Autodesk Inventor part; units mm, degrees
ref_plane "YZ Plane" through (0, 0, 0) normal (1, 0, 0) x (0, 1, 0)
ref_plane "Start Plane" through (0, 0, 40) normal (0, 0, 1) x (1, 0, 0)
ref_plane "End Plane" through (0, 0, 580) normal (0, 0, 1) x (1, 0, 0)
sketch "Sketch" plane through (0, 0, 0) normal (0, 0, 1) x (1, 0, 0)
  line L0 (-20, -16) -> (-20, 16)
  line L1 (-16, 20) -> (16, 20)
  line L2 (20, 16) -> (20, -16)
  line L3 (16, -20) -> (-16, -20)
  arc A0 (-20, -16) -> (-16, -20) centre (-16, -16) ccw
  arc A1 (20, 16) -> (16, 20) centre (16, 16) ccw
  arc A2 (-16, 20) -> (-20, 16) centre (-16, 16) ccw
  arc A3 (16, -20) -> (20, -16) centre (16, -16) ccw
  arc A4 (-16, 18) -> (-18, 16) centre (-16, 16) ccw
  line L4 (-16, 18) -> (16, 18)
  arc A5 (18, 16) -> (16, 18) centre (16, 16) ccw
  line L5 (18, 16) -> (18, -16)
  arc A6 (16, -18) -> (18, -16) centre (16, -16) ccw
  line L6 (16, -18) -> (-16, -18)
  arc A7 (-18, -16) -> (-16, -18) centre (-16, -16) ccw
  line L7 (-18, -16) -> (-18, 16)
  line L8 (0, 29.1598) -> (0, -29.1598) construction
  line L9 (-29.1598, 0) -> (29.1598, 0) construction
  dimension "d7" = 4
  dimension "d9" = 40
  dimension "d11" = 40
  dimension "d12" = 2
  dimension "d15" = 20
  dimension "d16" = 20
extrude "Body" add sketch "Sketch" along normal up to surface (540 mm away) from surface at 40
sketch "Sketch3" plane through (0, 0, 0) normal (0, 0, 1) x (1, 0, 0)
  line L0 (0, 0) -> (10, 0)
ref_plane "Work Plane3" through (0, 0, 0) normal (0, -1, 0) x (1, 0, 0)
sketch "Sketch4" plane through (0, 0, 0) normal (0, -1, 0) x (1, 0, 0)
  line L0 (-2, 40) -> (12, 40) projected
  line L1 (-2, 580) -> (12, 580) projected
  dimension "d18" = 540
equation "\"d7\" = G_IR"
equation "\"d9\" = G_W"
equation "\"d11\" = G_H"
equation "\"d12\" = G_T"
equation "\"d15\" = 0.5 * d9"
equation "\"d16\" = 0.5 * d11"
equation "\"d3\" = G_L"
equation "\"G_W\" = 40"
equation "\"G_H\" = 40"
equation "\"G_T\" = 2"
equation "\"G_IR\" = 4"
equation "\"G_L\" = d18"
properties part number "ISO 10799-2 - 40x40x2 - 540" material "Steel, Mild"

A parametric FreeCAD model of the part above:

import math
import FreeCAD as App
import Part
import Sketcher
from FreeCAD import Vector

doc = App.newDocument("Part")
body = doc.addObject("PartDesign::Body", "Body")

# Sketch on XY plane
sketch1 = body.newObject("Sketcher::SketchObject", "Sketch")
sketch1.AttachmentSupport = (doc.getObject("XY_Plane"), [""])
sketch1.MapMode = "FlatFace"
sketch1.AttachmentOffset = App.Placement(Vector(0, 0, 40), App.Rotation())
sketch1.addGeometry([
    Part.LineSegment(Vector(-20, 16, 0), Vector(-20, -16, 0)),  # 0
    Part.ArcOfCircle(Part.Circle(Vector(-16, -16, 0), Vector(0, 0, 1), 4), math.radians(180), math.radians(270)),  # 1
    Part.LineSegment(Vector(-16, -20, 0), Vector(16, -20, 0)),  # 2
    Part.ArcOfCircle(Part.Circle(Vector(16, -16, 0), Vector(0, 0, 1), 4), math.radians(-90), math.radians(0)),  # 3
    Part.LineSegment(Vector(20, -16, 0), Vector(20, 16, 0)),  # 4
    Part.ArcOfCircle(Part.Circle(Vector(16, 16, 0), Vector(0, 0, 1), 4), math.radians(0), math.radians(90)),  # 5
    Part.LineSegment(Vector(16, 20, 0), Vector(-16, 20, 0)),  # 6
    Part.ArcOfCircle(Part.Circle(Vector(-16, 16, 0), Vector(0, 0, 1), 4), math.radians(90), math.radians(180)),  # 7
    Part.ArcOfCircle(Part.Circle(Vector(-16, 16, 0), Vector(0, 0, 1), 2), math.radians(90), math.radians(180)),  # 8
    Part.LineSegment(Vector(-16, 18, 0), Vector(16, 18, 0)),  # 9
    Part.ArcOfCircle(Part.Circle(Vector(16, 16, 0), Vector(0, 0, 1), 2), math.radians(0), math.radians(90)),  # 10
    Part.LineSegment(Vector(18, 16, 0), Vector(18, -16, 0)),  # 11
    Part.ArcOfCircle(Part.Circle(Vector(16, -16, 0), Vector(0, 0, 1), 2), math.radians(-90), math.radians(0)),  # 12
    Part.LineSegment(Vector(16, -18, 0), Vector(-16, -18, 0)),  # 13
    Part.ArcOfCircle(Part.Circle(Vector(-16, -16, 0), Vector(0, 0, 1), 2), math.radians(180), math.radians(270)),  # 14
    Part.LineSegment(Vector(-18, -16, 0), Vector(-18, 16, 0)),  # 15
], False)
sketch1.addConstraint([
    Sketcher.Constraint("Tangent", 0, 2, 1, 1),
    Sketcher.Constraint("Tangent", 1, 2, 2, 1),
    Sketcher.Constraint("Tangent", 2, 2, 3, 1),
    Sketcher.Constraint("Tangent", 3, 2, 4, 1),
    Sketcher.Constraint("Tangent", 4, 2, 5, 1),
    Sketcher.Constraint("Tangent", 5, 2, 6, 1),
    Sketcher.Constraint("Tangent", 6, 2, 7, 1),
    Sketcher.Constraint("Tangent", 7, 2, 0, 1),
    Sketcher.Constraint("Tangent", 8, 1, 9, 1),
    Sketcher.Constraint("Tangent", 9, 2, 10, 2),
    Sketcher.Constraint("Tangent", 10, 1, 11, 1),
    Sketcher.Constraint("Tangent", 11, 2, 12, 2),
    Sketcher.Constraint("Tangent", 12, 1, 13, 1),
    Sketcher.Constraint("Tangent", 13, 2, 14, 2),
    Sketcher.Constraint("Tangent", 14, 1, 15, 1),
    Sketcher.Constraint("Tangent", 15, 2, 8, 2),
    Sketcher.Constraint("Vertical", 0),
    Sketcher.Constraint("Horizontal", 2),
    Sketcher.Constraint("Vertical", 4),
    Sketcher.Constraint("Horizontal", 6),
    Sketcher.Constraint("Horizontal", 9),
    Sketcher.Constraint("Vertical", 11),
    Sketcher.Constraint("Horizontal", 13),
    Sketcher.Constraint("Vertical", 15),
    Sketcher.Constraint("Coincident", 8, 3, 7, 3),
    Sketcher.Constraint("Coincident", 10, 3, 5, 3),
    Sketcher.Constraint("Coincident", 12, 3, 3, 3),
    Sketcher.Constraint("Equal", 1, 3),
    Sketcher.Constraint("Equal", 3, 5),
    Sketcher.Constraint("Equal", 5, 7),
    Sketcher.Constraint("Equal", 12, 14),
    Sketcher.Constraint("Symmetric", 1, 3, 5, 3, -1, 1),
    Sketcher.Constraint("Equal", 13, 0),
    Sketcher.Constraint("Radius", 1, 4.0),
    Sketcher.Constraint("Radius", 8, 2.0),
    Sketcher.Constraint("DistanceX", 0, 2, -1, 1, 20.0),
])
pad1 = body.newObject("PartDesign::Pad", "Pad")
pad1.Profile = sketch1
pad1.Length = 540

doc.recompute()
